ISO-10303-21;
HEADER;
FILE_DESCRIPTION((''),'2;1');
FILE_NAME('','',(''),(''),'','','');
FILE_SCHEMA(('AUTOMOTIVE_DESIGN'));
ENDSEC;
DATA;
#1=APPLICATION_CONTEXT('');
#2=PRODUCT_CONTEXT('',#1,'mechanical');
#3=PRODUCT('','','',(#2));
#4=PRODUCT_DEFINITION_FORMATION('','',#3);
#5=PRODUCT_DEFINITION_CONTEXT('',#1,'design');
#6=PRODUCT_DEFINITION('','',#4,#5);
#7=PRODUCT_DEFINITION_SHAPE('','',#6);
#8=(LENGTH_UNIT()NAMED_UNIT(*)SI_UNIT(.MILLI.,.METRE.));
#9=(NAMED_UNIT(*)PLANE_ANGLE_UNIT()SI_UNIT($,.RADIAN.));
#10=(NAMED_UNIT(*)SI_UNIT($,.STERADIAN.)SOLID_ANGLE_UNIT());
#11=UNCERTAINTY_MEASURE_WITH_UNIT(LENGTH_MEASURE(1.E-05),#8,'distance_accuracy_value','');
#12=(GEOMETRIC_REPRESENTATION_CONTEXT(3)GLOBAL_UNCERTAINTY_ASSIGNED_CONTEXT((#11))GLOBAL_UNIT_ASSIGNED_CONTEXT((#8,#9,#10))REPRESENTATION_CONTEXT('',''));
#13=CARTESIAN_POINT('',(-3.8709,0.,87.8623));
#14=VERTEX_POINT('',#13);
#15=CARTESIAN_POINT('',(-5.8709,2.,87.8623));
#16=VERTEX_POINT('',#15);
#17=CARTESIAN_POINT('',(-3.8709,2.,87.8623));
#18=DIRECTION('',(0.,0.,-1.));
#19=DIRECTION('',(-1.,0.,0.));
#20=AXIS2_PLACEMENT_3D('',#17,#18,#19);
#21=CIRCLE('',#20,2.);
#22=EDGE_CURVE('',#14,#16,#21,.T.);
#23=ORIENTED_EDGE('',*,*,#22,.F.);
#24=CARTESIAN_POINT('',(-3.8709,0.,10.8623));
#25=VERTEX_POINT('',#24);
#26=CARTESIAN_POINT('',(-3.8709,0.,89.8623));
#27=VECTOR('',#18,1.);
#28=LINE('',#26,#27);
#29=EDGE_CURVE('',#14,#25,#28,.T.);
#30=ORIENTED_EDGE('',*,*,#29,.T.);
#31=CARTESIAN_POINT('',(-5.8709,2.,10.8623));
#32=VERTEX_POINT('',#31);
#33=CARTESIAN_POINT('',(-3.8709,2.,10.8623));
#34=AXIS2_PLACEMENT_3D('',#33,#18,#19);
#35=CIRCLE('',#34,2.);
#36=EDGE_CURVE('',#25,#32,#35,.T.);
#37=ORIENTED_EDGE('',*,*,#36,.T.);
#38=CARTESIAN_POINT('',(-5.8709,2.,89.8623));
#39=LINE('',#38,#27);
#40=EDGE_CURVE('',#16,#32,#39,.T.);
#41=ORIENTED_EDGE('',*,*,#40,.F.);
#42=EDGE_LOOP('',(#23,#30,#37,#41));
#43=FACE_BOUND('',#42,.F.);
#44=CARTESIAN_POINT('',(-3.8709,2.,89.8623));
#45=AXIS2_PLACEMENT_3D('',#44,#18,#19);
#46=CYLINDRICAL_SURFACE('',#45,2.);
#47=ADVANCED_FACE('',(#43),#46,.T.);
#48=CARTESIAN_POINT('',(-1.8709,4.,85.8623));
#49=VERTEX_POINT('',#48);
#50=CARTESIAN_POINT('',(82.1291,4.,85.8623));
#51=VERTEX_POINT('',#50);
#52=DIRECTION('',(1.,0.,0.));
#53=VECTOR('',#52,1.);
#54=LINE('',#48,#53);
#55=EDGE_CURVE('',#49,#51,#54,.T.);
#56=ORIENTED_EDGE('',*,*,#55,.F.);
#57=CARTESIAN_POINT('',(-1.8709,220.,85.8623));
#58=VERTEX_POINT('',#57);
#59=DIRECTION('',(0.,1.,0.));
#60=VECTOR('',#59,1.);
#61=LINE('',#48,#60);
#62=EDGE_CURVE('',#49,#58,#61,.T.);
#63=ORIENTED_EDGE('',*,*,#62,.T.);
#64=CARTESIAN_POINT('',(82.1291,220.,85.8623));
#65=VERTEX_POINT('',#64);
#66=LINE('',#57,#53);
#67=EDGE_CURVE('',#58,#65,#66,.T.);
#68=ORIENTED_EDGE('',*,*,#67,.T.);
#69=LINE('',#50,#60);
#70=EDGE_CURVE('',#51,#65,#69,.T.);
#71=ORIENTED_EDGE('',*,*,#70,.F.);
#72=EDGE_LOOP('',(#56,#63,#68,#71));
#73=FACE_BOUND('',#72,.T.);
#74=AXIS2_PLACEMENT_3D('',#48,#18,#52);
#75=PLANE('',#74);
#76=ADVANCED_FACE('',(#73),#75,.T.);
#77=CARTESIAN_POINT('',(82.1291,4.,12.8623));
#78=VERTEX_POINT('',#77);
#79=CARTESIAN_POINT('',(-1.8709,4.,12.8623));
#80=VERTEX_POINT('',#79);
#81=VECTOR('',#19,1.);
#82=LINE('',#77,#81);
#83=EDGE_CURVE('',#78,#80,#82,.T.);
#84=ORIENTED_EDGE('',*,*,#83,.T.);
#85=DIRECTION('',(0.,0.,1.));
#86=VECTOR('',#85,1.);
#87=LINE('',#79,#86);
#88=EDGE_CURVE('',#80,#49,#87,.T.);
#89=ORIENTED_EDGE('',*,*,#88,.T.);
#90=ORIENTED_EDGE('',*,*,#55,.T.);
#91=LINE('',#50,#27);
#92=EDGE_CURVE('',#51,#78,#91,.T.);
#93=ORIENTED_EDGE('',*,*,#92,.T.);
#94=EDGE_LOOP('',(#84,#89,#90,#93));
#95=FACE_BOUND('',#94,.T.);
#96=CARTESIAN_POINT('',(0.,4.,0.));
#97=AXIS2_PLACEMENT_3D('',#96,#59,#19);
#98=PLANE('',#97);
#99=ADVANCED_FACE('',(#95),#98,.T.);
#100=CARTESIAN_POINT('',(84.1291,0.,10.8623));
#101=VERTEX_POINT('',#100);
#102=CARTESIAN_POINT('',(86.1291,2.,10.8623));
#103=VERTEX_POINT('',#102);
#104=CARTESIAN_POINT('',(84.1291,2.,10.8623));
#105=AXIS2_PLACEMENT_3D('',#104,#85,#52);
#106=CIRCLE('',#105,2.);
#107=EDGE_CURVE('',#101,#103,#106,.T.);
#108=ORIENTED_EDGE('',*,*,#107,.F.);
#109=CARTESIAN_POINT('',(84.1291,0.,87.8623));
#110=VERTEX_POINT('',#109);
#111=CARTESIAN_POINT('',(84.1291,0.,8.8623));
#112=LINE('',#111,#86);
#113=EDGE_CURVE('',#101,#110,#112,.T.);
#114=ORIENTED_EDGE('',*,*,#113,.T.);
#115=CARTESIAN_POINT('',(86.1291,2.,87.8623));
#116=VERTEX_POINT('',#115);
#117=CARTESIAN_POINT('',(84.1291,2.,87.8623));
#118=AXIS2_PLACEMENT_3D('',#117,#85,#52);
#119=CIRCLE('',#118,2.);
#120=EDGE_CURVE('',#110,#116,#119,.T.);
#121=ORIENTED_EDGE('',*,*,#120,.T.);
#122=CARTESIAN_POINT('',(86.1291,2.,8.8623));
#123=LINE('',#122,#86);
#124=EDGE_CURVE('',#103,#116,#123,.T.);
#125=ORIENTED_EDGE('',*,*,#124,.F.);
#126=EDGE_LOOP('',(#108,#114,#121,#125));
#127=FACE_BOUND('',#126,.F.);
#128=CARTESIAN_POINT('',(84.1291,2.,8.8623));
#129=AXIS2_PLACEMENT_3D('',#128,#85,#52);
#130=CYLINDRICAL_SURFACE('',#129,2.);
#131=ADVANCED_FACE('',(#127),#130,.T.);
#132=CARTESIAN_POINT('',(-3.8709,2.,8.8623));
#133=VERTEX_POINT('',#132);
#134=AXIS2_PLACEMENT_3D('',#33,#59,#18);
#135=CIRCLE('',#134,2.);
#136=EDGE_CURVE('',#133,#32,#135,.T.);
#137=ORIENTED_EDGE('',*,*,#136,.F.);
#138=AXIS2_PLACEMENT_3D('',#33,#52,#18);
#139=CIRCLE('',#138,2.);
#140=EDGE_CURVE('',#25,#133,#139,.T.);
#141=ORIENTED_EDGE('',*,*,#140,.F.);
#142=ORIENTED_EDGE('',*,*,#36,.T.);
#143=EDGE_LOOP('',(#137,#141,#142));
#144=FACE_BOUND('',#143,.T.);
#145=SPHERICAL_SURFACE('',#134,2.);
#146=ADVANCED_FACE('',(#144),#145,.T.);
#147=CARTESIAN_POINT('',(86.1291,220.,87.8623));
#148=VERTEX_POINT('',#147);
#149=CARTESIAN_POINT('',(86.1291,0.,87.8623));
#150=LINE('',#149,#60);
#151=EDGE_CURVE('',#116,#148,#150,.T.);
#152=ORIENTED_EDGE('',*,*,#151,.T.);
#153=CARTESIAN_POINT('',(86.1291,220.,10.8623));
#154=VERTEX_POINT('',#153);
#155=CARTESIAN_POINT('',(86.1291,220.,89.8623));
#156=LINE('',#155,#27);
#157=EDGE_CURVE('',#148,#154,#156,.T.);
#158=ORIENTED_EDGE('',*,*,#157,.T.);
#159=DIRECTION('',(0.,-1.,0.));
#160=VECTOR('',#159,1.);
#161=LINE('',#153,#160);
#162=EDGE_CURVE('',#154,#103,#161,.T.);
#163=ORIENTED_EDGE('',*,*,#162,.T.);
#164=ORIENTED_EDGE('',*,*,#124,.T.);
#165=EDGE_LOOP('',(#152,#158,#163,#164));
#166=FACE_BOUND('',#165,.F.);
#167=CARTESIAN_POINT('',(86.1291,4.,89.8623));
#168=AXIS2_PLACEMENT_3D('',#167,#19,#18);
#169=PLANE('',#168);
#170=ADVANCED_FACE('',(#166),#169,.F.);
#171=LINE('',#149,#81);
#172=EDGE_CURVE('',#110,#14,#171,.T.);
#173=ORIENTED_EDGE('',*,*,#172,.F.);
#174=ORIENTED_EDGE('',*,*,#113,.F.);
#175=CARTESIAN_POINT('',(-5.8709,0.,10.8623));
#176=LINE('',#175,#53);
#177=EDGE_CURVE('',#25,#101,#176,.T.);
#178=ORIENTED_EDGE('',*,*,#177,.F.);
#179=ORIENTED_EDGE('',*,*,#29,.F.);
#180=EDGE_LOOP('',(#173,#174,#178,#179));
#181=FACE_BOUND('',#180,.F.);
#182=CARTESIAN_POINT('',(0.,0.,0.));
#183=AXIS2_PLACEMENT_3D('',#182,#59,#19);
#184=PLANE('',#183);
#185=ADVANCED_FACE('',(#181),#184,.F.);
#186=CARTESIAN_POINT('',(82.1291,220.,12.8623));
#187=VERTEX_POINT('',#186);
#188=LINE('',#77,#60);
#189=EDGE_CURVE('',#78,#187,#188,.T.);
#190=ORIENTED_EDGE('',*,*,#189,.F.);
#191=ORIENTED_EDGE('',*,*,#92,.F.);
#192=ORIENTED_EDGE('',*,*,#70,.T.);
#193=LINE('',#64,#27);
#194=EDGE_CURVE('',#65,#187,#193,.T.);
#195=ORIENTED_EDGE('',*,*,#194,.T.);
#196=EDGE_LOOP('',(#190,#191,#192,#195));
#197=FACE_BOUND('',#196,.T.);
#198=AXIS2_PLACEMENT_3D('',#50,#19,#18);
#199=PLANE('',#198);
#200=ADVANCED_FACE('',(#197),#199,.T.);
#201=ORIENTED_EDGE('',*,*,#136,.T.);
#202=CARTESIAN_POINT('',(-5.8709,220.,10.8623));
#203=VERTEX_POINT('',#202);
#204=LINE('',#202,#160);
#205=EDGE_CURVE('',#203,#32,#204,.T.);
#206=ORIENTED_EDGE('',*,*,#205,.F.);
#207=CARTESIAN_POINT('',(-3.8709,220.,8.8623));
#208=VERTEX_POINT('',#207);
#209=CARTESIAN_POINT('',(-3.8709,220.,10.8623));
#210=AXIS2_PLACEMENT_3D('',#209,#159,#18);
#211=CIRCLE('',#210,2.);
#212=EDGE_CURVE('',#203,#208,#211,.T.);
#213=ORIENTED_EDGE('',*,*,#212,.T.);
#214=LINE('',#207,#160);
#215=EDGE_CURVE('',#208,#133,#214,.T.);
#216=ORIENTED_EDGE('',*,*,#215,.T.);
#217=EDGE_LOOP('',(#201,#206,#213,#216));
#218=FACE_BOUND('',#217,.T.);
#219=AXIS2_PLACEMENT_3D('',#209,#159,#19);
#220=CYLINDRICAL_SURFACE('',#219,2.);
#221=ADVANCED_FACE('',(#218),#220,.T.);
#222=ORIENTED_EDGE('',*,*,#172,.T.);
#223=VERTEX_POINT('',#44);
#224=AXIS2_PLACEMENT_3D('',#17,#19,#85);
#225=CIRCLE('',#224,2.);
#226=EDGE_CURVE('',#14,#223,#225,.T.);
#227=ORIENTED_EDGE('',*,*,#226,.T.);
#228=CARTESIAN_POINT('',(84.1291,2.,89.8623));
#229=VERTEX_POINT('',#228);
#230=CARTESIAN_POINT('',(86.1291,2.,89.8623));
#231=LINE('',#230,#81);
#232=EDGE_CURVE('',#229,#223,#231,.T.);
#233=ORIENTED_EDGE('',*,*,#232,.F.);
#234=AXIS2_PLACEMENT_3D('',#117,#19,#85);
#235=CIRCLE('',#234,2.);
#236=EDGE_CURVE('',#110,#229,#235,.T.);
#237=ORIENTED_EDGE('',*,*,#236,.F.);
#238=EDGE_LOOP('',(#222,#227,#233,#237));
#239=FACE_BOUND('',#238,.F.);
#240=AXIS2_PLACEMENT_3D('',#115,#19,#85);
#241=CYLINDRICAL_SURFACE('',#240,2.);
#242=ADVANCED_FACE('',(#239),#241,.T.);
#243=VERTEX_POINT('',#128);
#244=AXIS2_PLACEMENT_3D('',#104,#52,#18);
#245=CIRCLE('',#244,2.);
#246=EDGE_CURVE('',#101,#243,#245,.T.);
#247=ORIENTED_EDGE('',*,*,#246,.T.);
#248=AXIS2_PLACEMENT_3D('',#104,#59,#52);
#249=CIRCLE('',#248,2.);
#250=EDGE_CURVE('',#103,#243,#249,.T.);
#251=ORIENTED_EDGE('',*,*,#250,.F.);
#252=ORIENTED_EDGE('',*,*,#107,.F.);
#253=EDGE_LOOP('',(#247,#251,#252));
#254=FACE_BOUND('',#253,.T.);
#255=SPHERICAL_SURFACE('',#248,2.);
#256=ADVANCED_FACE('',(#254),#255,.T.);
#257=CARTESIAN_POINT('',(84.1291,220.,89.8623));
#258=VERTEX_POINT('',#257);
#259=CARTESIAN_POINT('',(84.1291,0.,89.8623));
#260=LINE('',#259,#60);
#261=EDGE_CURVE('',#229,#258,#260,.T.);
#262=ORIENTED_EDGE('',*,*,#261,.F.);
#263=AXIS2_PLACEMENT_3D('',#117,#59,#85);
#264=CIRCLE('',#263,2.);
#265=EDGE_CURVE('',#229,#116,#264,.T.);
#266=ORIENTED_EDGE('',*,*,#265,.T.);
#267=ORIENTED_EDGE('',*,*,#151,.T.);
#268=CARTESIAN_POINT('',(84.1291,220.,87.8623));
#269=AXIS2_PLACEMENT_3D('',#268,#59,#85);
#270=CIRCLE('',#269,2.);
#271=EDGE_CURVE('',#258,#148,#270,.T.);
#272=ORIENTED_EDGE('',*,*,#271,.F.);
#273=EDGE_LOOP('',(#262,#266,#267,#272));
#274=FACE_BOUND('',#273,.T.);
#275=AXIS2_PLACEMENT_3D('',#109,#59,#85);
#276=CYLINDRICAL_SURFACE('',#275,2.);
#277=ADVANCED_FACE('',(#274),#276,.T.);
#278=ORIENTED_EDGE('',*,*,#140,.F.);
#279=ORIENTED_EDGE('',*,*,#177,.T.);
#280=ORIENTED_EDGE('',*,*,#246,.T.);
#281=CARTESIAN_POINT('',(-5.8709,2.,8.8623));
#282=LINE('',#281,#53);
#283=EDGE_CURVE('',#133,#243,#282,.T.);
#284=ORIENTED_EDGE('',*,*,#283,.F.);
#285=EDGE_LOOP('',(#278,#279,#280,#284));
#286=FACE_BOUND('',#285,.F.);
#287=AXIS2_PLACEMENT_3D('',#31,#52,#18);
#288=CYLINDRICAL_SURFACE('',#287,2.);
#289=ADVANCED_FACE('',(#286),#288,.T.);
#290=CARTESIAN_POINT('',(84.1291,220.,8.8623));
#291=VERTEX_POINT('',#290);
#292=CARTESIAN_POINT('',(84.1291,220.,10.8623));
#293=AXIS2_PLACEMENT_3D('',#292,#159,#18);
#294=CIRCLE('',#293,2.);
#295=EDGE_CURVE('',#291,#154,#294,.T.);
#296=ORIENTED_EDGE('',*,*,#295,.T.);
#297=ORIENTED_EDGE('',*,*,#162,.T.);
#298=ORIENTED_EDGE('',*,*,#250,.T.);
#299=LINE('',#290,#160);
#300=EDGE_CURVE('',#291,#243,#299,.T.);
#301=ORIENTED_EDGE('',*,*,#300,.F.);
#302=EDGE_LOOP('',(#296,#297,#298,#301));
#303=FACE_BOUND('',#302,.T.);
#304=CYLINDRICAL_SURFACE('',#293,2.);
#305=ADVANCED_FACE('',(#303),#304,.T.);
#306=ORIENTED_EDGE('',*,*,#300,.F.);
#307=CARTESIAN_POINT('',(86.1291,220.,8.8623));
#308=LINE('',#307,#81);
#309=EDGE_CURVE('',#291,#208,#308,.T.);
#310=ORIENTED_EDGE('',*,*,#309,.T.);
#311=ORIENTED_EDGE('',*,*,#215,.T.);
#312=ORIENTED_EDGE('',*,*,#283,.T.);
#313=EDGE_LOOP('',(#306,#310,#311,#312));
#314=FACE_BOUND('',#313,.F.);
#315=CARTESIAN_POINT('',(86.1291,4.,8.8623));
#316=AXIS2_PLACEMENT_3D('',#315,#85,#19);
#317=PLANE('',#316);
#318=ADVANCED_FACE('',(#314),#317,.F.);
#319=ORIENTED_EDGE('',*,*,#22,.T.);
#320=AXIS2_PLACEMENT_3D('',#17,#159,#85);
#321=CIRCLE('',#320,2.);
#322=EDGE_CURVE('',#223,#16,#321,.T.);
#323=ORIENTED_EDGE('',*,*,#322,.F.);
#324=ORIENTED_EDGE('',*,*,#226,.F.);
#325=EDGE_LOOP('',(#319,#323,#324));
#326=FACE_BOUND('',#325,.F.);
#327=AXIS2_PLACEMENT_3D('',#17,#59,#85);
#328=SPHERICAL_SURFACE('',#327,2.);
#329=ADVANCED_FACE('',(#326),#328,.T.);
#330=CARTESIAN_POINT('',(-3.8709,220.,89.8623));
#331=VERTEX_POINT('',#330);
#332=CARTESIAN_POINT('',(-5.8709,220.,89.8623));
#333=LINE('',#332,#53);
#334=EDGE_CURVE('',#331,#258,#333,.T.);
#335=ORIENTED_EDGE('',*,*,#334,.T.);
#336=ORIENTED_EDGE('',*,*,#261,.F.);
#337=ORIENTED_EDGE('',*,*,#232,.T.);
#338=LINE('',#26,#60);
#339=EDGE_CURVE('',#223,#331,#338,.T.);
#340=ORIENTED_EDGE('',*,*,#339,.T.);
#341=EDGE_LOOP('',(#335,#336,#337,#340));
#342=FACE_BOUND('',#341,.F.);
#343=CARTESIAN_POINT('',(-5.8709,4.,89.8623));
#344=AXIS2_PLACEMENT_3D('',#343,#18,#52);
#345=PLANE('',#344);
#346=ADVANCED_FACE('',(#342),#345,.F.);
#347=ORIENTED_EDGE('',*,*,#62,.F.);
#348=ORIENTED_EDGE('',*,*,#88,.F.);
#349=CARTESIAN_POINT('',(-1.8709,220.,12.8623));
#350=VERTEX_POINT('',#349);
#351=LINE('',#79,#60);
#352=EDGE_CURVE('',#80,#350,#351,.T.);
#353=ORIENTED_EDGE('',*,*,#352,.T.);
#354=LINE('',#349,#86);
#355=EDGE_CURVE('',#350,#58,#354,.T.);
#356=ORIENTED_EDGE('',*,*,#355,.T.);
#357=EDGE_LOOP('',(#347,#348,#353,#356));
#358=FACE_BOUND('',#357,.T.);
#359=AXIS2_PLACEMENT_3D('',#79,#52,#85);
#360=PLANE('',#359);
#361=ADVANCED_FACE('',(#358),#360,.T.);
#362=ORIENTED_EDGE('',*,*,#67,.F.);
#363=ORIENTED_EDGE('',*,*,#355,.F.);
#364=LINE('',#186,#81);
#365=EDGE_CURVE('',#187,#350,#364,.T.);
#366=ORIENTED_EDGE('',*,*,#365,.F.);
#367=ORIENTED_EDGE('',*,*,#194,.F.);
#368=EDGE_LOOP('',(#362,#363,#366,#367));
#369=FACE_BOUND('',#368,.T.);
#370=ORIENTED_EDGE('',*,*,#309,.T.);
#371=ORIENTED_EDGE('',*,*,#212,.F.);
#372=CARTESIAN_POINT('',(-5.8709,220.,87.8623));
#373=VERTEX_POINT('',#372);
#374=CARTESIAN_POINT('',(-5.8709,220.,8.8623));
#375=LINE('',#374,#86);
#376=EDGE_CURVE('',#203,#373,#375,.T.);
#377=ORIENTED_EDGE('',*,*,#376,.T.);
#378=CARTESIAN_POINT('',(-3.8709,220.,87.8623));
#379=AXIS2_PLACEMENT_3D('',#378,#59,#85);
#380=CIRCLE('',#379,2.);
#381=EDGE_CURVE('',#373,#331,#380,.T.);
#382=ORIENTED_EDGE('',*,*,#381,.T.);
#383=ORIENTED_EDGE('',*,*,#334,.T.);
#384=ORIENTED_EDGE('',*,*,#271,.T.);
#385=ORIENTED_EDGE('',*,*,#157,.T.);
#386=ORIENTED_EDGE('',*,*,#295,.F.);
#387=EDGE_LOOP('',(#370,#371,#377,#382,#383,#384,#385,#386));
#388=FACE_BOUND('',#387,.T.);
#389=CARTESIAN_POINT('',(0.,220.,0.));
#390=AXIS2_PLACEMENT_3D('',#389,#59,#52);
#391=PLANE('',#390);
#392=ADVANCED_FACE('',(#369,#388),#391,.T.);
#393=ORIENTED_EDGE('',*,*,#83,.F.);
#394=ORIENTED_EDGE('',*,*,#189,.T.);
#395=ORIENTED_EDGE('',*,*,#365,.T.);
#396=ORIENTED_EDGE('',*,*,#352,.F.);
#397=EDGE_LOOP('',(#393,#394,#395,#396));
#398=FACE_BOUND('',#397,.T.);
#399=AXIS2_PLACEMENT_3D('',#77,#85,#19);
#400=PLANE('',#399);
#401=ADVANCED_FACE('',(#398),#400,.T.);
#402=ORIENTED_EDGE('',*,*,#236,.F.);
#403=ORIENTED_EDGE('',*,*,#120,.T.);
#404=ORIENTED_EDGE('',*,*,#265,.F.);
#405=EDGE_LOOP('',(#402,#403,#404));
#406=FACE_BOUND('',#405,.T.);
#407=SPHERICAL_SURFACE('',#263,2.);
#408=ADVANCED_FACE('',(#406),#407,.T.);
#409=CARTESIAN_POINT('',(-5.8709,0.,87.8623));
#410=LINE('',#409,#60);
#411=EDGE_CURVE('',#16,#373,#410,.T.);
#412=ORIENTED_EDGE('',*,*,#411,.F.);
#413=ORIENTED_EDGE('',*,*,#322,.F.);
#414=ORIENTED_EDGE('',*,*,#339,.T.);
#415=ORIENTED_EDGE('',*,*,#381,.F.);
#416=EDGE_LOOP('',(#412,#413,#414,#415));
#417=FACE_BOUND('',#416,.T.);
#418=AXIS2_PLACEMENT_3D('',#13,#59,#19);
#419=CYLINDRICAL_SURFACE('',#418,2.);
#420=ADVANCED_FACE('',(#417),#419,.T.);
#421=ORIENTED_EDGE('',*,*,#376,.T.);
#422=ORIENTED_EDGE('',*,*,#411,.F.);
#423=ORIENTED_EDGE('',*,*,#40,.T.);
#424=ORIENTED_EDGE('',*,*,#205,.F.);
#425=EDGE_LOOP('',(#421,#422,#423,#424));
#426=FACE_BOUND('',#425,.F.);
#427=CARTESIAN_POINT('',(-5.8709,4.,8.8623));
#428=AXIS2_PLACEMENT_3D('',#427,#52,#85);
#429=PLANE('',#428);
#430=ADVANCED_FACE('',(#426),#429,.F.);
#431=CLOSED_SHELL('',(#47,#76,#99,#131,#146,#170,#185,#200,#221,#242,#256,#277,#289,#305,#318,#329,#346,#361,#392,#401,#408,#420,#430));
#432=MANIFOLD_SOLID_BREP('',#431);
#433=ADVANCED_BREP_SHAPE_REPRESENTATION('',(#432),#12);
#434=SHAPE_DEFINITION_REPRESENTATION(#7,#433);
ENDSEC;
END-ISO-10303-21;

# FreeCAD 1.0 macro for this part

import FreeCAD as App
import Part
import Sketcher

V = App.Vector
Q = App.Units.Quantity


def edges_at(feature, points):
    """Names of the edges that pass closest to the given points."""
    edges = feature.Shape.Edges
    near = lambda p: min(range(len(edges)), key=lambda i: edges[i].distToShape(Part.Vertex(*p))[0])
    return sorted({f"Edge{near(p) + 1}" for p in points})


def add_polygon(sketch, points):
    """Adds a closed chain of lines whose ends are joined by coincident constraints."""
    first, n = sketch.GeometryCount, len(points)
    for a, b in zip(points, points[1:] + points[:1]):
        sketch.addGeometry(Part.LineSegment(App.Vector(*a, 0), App.Vector(*b, 0)), False)
    for i in range(n):
        sketch.addConstraint(Sketcher.Constraint("Coincident", first + i, 2, first + (i + 1) % n, 1))

doc = App.newDocument("Part")
body = doc.addObject("PartDesign::Body", "Body")

# Sketch on XZ plane
sketch1 = body.newObject("Sketcher::SketchObject", "Sketch")
sketch1.AttachmentSupport = (doc.getObject("XZ_Plane"), [""])
sketch1.MapMode = "FlatFace"
add_polygon(sketch1, [(86, 9), (-6, 9), (-6, 90), (86, 90)])  # lines 0-3
sketch1.addConstraint([
    Sketcher.Constraint("Horizontal", 0),
    Sketcher.Constraint("Vertical", 1),
    Sketcher.Constraint("Horizontal", 2),
    Sketcher.Constraint("Vertical", 3),
    Sketcher.Constraint("DistanceX", 0, 2, 0, 1, Q("92 mm")),
    Sketcher.Constraint("DistanceY", 1, 1, 1, 2, Q("81 mm")),
    Sketcher.Constraint("DistanceX", 0, 2, -1, 1, Q("5.871 mm")),
    Sketcher.Constraint("DistanceY", -1, 1, 0, 2, Q("8.8623 mm")),
])
pad1 = body.newObject("PartDesign::Pad", "Pad")
pad1.Profile = sketch1
pad1.Length = 4
pad1.Reversed = True

# Sketch on XZ plane
sketch2 = body.newObject("Sketcher::SketchObject", "Sketch001")
sketch2.AttachmentSupport = (doc.getObject("XZ_Plane"), [""])
sketch2.MapMode = "FlatFace"
sketch2.AttachmentOffset = App.Placement(V(0, 0, -4), App.Rotation())
add_polygon(sketch2, [(-6, 9), (-6, 90), (86, 90), (86, 9)])  # lines 0-3
add_polygon(sketch2, [(82, 86), (-2, 86), (-2, 13), (82, 13)])  # lines 4-7
sketch2.addConstraint([
    Sketcher.Constraint("Vertical", 0),
    Sketcher.Constraint("Horizontal", 1),
    Sketcher.Constraint("Vertical", 2),
    Sketcher.Constraint("Horizontal", 3),
    Sketcher.Constraint("Horizontal", 4),
    Sketcher.Constraint("Vertical", 5),
    Sketcher.Constraint("Horizontal", 6),
    Sketcher.Constraint("Vertical", 7),
    Sketcher.Constraint("DistanceX", 4, 2, 4, 1, Q("84 mm")),
    Sketcher.Constraint("DistanceY", 5, 2, 5, 1, Q("73 mm")),
    Sketcher.Constraint("DistanceX", 0, 2, 4, 2, Q("4 mm")),
    Sketcher.Constraint("DistanceY", 4, 2, 0, 2, Q("4 mm")),
    Sketcher.Constraint("DistanceY", 3, 2, 5, 2, Q("4 mm")),
    Sketcher.Constraint("DistanceX", 6, 2, 2, 2, Q("4 mm")),
    Sketcher.Constraint("DistanceX", 0, 2, -1, 1, Q("5.871 mm")),
    Sketcher.Constraint("DistanceY", -1, 1, 0, 2, Q("89.8623 mm")),
])
pad2 = body.newObject("PartDesign::Pad", "Pad001")
pad2.Profile = sketch2
pad2.Length = 216
pad2.Reversed = True
doc.recompute()

fillet = body.newObject("PartDesign::Fillet", "Fillet")
fillet.Base = (pad2, edges_at(pad2, [
    (86.129, 110, 89.862),
    (86.129, 110, 8.862),
    (-5.871, 110, 8.862),
    (-5.871, 110, 89.862),
    (40.129, 0, 89.862),
    (86.129, 0, 49.362),
    (40.129, 0, 8.862),
    (-5.871, 0, 49.362),
]))
fillet.Radius = 2

doc.recompute()
